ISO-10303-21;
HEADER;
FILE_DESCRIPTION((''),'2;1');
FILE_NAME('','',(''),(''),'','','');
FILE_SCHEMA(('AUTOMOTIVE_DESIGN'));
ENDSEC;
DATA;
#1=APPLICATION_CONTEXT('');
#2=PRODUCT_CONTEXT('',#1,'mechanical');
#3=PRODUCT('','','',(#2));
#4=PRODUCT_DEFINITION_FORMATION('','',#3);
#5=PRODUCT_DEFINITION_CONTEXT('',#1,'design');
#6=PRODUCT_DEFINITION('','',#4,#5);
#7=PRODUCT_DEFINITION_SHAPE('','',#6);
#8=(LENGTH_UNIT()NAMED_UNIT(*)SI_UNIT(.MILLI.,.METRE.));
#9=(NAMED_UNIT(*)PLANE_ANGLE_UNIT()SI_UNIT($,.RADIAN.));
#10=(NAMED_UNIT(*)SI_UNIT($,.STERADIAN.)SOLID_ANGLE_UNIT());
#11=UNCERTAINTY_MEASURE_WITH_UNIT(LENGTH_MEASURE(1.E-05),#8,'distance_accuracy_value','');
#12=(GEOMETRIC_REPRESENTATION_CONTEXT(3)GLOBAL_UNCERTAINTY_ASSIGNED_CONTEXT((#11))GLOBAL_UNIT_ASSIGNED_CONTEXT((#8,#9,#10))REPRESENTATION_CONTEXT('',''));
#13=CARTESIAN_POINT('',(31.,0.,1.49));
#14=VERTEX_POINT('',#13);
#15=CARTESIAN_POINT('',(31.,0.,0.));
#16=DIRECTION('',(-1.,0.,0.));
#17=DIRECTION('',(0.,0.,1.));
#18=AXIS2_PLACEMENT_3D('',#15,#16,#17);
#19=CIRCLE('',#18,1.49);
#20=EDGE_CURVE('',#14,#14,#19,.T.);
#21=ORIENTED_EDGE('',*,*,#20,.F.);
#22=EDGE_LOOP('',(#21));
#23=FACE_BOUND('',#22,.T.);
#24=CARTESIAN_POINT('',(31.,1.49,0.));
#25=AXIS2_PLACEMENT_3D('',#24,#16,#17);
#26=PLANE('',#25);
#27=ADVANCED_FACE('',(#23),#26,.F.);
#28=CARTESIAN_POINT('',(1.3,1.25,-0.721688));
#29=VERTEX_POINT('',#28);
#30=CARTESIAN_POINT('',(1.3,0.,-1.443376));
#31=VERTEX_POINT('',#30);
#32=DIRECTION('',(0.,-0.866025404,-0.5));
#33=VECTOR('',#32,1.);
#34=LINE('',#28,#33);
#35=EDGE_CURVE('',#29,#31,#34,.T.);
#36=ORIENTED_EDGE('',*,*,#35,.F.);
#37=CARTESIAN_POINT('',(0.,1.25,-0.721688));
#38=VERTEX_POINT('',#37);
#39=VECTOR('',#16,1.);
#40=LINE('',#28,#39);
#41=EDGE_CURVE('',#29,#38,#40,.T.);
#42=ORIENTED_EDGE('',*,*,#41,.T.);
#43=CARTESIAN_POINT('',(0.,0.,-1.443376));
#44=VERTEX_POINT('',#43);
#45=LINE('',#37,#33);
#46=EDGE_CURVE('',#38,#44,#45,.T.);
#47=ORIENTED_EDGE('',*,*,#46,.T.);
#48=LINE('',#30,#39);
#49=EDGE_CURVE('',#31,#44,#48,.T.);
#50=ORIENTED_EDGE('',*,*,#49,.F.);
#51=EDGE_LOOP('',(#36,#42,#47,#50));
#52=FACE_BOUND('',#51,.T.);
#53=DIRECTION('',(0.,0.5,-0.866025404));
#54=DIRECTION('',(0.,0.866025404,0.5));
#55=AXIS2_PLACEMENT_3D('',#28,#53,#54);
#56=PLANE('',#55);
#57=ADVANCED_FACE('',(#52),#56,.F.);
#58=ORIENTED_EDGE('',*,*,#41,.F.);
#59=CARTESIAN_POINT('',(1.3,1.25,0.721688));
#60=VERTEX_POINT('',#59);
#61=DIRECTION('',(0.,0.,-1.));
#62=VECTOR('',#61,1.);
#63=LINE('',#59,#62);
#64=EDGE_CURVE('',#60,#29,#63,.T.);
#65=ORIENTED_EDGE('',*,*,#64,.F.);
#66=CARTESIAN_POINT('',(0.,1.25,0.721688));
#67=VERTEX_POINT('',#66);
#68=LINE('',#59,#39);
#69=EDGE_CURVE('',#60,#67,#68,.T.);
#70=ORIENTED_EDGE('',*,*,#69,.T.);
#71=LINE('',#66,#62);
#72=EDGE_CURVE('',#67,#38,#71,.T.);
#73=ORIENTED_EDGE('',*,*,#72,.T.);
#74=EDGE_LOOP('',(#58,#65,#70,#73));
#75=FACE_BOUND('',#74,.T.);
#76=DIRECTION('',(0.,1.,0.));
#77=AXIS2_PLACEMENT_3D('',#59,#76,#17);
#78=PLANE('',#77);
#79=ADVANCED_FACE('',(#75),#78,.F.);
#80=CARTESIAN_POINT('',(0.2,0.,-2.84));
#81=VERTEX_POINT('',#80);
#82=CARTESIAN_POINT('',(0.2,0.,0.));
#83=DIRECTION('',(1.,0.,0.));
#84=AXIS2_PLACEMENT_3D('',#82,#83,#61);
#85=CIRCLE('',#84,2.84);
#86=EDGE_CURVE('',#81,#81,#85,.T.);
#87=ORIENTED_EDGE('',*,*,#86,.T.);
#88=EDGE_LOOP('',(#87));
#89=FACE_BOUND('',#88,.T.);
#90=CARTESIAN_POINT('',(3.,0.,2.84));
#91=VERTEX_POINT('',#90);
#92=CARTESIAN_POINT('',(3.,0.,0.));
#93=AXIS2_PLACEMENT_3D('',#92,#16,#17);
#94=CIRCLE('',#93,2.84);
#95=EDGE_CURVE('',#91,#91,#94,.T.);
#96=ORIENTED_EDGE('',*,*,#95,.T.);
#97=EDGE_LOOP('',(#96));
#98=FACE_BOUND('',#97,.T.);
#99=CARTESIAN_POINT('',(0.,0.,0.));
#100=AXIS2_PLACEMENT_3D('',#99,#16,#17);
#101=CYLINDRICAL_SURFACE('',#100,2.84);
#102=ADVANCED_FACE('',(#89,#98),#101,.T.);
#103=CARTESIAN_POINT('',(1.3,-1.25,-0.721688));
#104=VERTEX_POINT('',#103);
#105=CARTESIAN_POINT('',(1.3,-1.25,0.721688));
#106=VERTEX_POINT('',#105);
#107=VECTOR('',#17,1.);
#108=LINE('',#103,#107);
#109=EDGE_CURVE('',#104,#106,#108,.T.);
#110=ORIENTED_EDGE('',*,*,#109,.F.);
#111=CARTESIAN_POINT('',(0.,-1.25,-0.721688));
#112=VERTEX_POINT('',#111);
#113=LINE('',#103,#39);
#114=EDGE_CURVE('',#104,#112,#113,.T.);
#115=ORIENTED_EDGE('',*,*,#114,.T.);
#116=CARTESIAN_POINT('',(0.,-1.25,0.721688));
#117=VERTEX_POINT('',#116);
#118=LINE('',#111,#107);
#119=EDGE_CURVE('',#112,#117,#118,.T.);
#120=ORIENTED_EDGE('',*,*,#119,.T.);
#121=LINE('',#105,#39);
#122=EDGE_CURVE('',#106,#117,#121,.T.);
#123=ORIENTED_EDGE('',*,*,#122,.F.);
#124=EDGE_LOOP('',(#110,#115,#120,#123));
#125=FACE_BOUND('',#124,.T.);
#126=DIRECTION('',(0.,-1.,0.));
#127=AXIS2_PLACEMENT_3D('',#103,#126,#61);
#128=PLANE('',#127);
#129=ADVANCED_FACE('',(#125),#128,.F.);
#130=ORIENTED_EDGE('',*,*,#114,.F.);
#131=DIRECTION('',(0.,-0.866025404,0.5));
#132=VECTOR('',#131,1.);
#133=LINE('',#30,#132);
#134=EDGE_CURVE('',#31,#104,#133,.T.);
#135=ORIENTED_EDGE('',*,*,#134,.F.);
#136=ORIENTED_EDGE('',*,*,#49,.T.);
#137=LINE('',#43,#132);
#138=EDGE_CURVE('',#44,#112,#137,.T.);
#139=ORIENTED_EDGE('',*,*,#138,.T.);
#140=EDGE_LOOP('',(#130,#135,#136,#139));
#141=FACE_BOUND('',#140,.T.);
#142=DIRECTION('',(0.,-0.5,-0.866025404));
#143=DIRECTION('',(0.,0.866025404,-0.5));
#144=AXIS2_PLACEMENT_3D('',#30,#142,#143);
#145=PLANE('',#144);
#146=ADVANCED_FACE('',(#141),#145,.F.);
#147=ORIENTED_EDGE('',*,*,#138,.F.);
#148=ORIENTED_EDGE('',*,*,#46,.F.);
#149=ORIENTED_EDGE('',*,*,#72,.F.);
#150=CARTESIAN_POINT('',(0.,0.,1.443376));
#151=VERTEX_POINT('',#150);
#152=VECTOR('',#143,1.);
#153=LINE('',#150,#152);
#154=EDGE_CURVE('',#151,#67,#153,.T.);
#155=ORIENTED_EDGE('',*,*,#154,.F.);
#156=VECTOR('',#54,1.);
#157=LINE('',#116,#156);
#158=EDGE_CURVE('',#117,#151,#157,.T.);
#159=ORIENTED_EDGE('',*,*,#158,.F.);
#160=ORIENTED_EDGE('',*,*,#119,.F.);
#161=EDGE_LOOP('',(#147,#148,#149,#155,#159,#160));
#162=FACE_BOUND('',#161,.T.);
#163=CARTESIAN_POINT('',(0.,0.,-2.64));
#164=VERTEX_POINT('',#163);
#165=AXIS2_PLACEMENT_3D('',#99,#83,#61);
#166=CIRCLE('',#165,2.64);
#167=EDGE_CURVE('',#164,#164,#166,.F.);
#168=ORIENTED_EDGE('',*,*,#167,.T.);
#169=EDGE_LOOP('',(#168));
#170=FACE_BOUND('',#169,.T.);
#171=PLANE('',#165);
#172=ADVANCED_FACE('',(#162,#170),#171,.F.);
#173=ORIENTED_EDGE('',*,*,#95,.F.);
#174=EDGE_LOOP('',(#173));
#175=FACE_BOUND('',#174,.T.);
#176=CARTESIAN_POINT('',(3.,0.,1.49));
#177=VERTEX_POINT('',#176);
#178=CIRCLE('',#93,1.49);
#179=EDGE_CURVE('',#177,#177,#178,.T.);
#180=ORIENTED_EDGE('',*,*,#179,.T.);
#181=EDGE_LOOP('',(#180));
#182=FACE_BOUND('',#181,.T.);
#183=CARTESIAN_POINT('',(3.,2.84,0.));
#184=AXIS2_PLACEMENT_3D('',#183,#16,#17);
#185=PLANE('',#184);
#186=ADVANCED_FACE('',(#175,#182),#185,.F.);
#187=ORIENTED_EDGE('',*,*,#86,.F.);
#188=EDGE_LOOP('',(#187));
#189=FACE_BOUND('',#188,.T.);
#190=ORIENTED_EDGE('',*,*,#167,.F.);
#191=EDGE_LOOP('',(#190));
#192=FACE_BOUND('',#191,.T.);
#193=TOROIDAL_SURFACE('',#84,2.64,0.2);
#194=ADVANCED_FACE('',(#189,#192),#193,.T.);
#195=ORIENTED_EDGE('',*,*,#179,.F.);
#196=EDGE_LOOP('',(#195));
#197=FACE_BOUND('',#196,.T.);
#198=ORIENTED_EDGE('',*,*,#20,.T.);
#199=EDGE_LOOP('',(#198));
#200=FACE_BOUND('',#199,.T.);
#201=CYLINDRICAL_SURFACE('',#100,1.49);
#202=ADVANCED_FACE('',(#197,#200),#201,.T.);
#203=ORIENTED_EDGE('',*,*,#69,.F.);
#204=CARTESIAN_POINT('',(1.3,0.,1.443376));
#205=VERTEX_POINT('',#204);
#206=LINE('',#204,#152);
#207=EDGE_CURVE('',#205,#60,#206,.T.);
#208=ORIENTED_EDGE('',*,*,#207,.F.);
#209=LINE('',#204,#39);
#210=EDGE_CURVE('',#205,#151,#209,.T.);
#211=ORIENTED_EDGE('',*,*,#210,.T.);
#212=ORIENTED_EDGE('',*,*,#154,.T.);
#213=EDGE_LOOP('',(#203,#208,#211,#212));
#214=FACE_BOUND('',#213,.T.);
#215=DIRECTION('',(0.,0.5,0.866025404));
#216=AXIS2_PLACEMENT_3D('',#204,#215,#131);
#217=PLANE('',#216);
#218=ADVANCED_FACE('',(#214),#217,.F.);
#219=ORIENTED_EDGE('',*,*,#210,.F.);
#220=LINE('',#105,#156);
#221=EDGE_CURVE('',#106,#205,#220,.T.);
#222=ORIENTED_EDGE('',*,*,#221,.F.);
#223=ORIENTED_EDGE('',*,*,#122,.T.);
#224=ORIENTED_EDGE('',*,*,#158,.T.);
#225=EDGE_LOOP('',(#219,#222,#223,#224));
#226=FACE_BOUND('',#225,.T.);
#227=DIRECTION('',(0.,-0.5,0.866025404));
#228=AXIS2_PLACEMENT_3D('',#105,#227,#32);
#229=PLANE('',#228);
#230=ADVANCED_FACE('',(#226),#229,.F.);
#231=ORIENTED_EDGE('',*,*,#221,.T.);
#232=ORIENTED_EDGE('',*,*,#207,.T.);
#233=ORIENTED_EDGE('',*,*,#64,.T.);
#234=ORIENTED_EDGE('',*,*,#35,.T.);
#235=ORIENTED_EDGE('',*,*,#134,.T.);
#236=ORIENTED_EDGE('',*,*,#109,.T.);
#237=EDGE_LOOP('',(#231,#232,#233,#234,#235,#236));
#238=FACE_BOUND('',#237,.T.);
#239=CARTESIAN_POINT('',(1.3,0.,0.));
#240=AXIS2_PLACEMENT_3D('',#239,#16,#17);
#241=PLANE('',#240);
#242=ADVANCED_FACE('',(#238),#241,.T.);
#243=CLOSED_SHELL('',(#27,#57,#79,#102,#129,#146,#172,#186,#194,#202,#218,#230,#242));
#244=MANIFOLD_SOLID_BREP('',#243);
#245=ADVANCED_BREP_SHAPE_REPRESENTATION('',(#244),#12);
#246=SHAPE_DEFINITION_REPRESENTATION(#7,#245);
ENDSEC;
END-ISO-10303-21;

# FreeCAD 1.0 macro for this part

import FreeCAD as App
import Part
import Sketcher

V = App.Vector
Q = App.Units.Quantity


def edges_at(feature, points):
    """Names of the edges that pass closest to the given points."""
    edges = feature.Shape.Edges
    near = lambda p: min(range(len(edges)), key=lambda i: edges[i].distToShape(Part.Vertex(*p))[0])
    return sorted({f"Edge{near(p) + 1}" for p in points})


def add_polygon(sketch, points):
    """Adds a closed chain of lines whose ends are joined by coincident constraints."""
    first, n = sketch.GeometryCount, len(points)
    for a, b in zip(points, points[1:] + points[:1]):
        sketch.addGeometry(Part.LineSegment(App.Vector(*a, 0), App.Vector(*b, 0)), False)
    for i in range(n):
        sketch.addConstraint(Sketcher.Constraint("Coincident", first + i, 2, first + (i + 1) % n, 1))

doc = App.newDocument("Part")
body = doc.addObject("PartDesign::Body", "Body")

# Sketch on XY plane
sketch1 = body.newObject("Sketcher::SketchObject", "Sketch")
sketch1.AttachmentSupport = (doc.getObject("XY_Plane"), [""])
sketch1.MapMode = "FlatFace"
add_polygon(sketch1, [(0, 2.8), (0, 0), (31, 0), (31, 1.5), (3, 1.5), (3, 2.8)])  # lines 0-5
sketch1.addConstraint([
    Sketcher.Constraint("Vertical", 0),
    Sketcher.Constraint("Horizontal", 1),
    Sketcher.Constraint("Vertical", 2),
    Sketcher.Constraint("Horizontal", 3),
    Sketcher.Constraint("Vertical", 4),
    Sketcher.Constraint("Horizontal", 5),
    Sketcher.Constraint("Coincident", 0, 2, -1, 1),
    Sketcher.Constraint("DistanceX", 1, 1, 1, 2, Q("31 mm")),
    Sketcher.Constraint("DistanceX", 3, 2, 3, 1, Q("28 mm")),
    Sketcher.Constraint("DistanceY", 0, 2, 0, 1, Q("2.84 mm")),
    Sketcher.Constraint("DistanceY", 2, 1, 2, 2, Q("1.49 mm")),
])
revolution = body.newObject("PartDesign::Revolution", "Revolution")
revolution.Profile = sketch1
revolution.ReferenceAxis = (sketch1, ["H_Axis"])
revolution.Angle = 360

# Sketch on YZ plane
sketch2 = body.newObject("Sketcher::SketchObject", "Sketch001")
sketch2.AttachmentSupport = (doc.getObject("YZ_Plane"), [""])
sketch2.MapMode = "FlatFace"
add_polygon(sketch2, [(0, -1.4), (-1.2, -0.7), (-1.2, 0.7), (0, 1.4), (1.2, 0.7), (1.2, -0.7)])  # lines 0-5
sketch2.addConstraint([
    Sketcher.Constraint("Vertical", 1),
    Sketcher.Constraint("Vertical", 4),
    Sketcher.Constraint("Symmetric", 0, 2, 3, 2, -1, 1),
    Sketcher.Constraint("Symmetric", 2, 2, 5, 2, -1, 1),
    Sketcher.Constraint("PointOnObject", 2, 2, -2),
    Sketcher.Constraint("Parallel", 2, 5),
    Sketcher.Constraint("Horizontal", 1, 2, 3, 2),
    Sketcher.Constraint("Angle", 0, Q("150 deg")),
    Sketcher.Constraint("DistanceX", 1, 2, 3, 2, Q("2.5 mm")),
    Sketcher.Constraint("DistanceY", 1, 1, 1, 2, Q("1.443376 mm")),
])
pocket1 = body.newObject("PartDesign::Pocket", "Pocket")
pocket1.Profile = sketch2
pocket1.Length = 1.3
pocket1.Reversed = True
doc.recompute()

fillet = body.newObject("PartDesign::Fillet", "Fillet")
fillet.Base = (pocket1, edges_at(pocket1, [(0, -2.84, 0)]))
fillet.Radius = 0.2

doc.recompute()
